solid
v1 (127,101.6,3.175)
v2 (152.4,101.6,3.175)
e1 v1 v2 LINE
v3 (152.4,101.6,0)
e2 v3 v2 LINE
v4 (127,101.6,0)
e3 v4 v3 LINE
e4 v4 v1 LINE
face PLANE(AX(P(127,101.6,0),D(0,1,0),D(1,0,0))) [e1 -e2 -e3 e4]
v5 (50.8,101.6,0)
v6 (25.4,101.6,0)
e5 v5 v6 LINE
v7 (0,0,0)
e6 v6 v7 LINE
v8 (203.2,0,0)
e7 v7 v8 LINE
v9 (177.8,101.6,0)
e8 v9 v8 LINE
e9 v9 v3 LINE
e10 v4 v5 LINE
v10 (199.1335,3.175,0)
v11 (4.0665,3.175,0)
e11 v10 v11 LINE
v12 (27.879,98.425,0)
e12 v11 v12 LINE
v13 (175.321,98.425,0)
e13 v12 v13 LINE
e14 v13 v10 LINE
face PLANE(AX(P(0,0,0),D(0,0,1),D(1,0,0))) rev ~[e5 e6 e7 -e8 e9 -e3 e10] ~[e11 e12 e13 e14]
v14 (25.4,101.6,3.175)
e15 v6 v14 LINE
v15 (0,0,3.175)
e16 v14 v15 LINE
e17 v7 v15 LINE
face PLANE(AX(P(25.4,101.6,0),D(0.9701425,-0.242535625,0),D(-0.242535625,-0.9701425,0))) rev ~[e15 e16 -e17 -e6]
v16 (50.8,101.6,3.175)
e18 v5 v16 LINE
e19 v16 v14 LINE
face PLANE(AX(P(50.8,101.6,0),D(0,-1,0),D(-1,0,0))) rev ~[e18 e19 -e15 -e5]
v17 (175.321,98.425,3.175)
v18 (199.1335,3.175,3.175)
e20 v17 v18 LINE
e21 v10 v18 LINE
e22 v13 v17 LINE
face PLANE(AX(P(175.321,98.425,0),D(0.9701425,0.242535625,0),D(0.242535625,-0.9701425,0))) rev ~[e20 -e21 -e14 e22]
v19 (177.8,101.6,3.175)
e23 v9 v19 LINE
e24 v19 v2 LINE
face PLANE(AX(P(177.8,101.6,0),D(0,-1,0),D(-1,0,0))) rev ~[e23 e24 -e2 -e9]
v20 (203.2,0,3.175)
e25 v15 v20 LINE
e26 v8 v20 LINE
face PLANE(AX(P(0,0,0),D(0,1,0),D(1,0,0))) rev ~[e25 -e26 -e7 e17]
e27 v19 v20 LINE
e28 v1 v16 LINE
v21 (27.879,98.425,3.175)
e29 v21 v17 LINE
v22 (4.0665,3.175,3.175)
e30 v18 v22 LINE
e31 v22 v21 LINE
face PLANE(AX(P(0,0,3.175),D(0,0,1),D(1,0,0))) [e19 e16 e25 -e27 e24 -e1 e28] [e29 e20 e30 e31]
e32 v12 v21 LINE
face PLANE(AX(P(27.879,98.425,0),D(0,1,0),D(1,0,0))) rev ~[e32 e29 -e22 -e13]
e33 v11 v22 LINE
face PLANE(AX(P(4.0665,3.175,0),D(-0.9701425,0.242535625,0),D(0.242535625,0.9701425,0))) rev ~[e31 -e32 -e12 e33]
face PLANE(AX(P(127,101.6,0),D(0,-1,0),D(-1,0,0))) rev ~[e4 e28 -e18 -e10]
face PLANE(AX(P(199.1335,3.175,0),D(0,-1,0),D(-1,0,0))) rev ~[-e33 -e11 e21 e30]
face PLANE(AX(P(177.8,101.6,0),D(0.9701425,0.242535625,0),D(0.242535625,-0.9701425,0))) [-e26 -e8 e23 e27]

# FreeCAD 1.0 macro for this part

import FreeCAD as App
import Part
import Sketcher
Q = App.Units.Quantity


def add_polygon(sketch, points):
    """Adds a closed chain of lines whose ends are joined by coincident constraints."""
    first, n = sketch.GeometryCount, len(points)
    for a, b in zip(points, points[1:] + points[:1]):
        sketch.addGeometry(Part.LineSegment(App.Vector(*a, 0), App.Vector(*b, 0)), False)
    for i in range(n):
        sketch.addConstraint(Sketcher.Constraint("Coincident", first + i, 2, first + (i + 1) % n, 1))

doc = App.newDocument("Part")
params = doc.addObject("Spreadsheet::Sheet", "Params")
for row, (alias, value) in enumerate([
    ("sketch1_width", "8 in"),
    ("sketch1_width2", "6 in"),
    ("pad1_length", "0.125 in"),
], start=1):
    params.set(f"A{row}", alias)
    params.set(f"B{row}", "=" + value)
    params.setAlias(f"B{row}", alias)

body = doc.addObject("PartDesign::Body", "Body")

sketch1 = body.newObject("Sketcher::SketchObject", "Sketch")
sketch1.AttachmentSupport = (doc.getObject("XY_Plane"), [""])
sketch1.MapMode = "FlatFace"
add_polygon(sketch1, [(25.4, 101.6), (0, 0), (203.2, 0), (177.8, 101.6)])
add_polygon(sketch1, [(4.0665, 3.175), (27.879, 98.425), (175.321, 98.425), (199.1335, 3.175)])
sketch1.addConstraint(Sketcher.Constraint("Horizontal", 1))
sketch1.addConstraint(Sketcher.Constraint("Horizontal", 3))
sketch1.addConstraint(Sketcher.Constraint("Horizontal", 5))
sketch1.addConstraint(Sketcher.Constraint("Horizontal", 7))
sketch1.addConstraint(Sketcher.Constraint("Coincident", 0, 2, -1, 1))
sketch1.addConstraint(Sketcher.Constraint("Parallel", 0, 4))
sketch1.addConstraint(Sketcher.Constraint("Parallel", 2, 6))
sketch1.addConstraint(Sketcher.Constraint("Equal", 0, 2))
sketch1.addConstraint(Sketcher.Constraint("DistanceX", 1, 1, 1, 2, Q("8 in")))
sketch1.addConstraint(Sketcher.Constraint("DistanceX", 3, 2, 3, 1, Q("6 in")))
sketch1.addConstraint(Sketcher.Constraint("DistanceY", -1, 1, 2, 2, Q("4 in")))
sketch1.addConstraint(Sketcher.Constraint("DistanceY", -1, 1, 6, 2, Q("0.125 in")))
sketch1.addConstraint(Sketcher.Constraint("DistanceY", 4, 2, 3, 2, Q("0.125 in")))
sketch1.addConstraint(Sketcher.Constraint("DistanceX", 5, 1, 5, 2, Q("5.8048 in")))
sketch1.addConstraint(Sketcher.Constraint("DistanceX", -1, 1, 4, 2, Q("1.0976 in")))
sketch1.setExpression("Constraints[16]", "Params.sketch1_width")
sketch1.setExpression("Constraints[17]", "Params.sketch1_width2")
pad1 = body.newObject("PartDesign::Pad", "Pad")
pad1.Profile = sketch1
pad1.setExpression("Length", "Params.pad1_length")

doc.recompute()
